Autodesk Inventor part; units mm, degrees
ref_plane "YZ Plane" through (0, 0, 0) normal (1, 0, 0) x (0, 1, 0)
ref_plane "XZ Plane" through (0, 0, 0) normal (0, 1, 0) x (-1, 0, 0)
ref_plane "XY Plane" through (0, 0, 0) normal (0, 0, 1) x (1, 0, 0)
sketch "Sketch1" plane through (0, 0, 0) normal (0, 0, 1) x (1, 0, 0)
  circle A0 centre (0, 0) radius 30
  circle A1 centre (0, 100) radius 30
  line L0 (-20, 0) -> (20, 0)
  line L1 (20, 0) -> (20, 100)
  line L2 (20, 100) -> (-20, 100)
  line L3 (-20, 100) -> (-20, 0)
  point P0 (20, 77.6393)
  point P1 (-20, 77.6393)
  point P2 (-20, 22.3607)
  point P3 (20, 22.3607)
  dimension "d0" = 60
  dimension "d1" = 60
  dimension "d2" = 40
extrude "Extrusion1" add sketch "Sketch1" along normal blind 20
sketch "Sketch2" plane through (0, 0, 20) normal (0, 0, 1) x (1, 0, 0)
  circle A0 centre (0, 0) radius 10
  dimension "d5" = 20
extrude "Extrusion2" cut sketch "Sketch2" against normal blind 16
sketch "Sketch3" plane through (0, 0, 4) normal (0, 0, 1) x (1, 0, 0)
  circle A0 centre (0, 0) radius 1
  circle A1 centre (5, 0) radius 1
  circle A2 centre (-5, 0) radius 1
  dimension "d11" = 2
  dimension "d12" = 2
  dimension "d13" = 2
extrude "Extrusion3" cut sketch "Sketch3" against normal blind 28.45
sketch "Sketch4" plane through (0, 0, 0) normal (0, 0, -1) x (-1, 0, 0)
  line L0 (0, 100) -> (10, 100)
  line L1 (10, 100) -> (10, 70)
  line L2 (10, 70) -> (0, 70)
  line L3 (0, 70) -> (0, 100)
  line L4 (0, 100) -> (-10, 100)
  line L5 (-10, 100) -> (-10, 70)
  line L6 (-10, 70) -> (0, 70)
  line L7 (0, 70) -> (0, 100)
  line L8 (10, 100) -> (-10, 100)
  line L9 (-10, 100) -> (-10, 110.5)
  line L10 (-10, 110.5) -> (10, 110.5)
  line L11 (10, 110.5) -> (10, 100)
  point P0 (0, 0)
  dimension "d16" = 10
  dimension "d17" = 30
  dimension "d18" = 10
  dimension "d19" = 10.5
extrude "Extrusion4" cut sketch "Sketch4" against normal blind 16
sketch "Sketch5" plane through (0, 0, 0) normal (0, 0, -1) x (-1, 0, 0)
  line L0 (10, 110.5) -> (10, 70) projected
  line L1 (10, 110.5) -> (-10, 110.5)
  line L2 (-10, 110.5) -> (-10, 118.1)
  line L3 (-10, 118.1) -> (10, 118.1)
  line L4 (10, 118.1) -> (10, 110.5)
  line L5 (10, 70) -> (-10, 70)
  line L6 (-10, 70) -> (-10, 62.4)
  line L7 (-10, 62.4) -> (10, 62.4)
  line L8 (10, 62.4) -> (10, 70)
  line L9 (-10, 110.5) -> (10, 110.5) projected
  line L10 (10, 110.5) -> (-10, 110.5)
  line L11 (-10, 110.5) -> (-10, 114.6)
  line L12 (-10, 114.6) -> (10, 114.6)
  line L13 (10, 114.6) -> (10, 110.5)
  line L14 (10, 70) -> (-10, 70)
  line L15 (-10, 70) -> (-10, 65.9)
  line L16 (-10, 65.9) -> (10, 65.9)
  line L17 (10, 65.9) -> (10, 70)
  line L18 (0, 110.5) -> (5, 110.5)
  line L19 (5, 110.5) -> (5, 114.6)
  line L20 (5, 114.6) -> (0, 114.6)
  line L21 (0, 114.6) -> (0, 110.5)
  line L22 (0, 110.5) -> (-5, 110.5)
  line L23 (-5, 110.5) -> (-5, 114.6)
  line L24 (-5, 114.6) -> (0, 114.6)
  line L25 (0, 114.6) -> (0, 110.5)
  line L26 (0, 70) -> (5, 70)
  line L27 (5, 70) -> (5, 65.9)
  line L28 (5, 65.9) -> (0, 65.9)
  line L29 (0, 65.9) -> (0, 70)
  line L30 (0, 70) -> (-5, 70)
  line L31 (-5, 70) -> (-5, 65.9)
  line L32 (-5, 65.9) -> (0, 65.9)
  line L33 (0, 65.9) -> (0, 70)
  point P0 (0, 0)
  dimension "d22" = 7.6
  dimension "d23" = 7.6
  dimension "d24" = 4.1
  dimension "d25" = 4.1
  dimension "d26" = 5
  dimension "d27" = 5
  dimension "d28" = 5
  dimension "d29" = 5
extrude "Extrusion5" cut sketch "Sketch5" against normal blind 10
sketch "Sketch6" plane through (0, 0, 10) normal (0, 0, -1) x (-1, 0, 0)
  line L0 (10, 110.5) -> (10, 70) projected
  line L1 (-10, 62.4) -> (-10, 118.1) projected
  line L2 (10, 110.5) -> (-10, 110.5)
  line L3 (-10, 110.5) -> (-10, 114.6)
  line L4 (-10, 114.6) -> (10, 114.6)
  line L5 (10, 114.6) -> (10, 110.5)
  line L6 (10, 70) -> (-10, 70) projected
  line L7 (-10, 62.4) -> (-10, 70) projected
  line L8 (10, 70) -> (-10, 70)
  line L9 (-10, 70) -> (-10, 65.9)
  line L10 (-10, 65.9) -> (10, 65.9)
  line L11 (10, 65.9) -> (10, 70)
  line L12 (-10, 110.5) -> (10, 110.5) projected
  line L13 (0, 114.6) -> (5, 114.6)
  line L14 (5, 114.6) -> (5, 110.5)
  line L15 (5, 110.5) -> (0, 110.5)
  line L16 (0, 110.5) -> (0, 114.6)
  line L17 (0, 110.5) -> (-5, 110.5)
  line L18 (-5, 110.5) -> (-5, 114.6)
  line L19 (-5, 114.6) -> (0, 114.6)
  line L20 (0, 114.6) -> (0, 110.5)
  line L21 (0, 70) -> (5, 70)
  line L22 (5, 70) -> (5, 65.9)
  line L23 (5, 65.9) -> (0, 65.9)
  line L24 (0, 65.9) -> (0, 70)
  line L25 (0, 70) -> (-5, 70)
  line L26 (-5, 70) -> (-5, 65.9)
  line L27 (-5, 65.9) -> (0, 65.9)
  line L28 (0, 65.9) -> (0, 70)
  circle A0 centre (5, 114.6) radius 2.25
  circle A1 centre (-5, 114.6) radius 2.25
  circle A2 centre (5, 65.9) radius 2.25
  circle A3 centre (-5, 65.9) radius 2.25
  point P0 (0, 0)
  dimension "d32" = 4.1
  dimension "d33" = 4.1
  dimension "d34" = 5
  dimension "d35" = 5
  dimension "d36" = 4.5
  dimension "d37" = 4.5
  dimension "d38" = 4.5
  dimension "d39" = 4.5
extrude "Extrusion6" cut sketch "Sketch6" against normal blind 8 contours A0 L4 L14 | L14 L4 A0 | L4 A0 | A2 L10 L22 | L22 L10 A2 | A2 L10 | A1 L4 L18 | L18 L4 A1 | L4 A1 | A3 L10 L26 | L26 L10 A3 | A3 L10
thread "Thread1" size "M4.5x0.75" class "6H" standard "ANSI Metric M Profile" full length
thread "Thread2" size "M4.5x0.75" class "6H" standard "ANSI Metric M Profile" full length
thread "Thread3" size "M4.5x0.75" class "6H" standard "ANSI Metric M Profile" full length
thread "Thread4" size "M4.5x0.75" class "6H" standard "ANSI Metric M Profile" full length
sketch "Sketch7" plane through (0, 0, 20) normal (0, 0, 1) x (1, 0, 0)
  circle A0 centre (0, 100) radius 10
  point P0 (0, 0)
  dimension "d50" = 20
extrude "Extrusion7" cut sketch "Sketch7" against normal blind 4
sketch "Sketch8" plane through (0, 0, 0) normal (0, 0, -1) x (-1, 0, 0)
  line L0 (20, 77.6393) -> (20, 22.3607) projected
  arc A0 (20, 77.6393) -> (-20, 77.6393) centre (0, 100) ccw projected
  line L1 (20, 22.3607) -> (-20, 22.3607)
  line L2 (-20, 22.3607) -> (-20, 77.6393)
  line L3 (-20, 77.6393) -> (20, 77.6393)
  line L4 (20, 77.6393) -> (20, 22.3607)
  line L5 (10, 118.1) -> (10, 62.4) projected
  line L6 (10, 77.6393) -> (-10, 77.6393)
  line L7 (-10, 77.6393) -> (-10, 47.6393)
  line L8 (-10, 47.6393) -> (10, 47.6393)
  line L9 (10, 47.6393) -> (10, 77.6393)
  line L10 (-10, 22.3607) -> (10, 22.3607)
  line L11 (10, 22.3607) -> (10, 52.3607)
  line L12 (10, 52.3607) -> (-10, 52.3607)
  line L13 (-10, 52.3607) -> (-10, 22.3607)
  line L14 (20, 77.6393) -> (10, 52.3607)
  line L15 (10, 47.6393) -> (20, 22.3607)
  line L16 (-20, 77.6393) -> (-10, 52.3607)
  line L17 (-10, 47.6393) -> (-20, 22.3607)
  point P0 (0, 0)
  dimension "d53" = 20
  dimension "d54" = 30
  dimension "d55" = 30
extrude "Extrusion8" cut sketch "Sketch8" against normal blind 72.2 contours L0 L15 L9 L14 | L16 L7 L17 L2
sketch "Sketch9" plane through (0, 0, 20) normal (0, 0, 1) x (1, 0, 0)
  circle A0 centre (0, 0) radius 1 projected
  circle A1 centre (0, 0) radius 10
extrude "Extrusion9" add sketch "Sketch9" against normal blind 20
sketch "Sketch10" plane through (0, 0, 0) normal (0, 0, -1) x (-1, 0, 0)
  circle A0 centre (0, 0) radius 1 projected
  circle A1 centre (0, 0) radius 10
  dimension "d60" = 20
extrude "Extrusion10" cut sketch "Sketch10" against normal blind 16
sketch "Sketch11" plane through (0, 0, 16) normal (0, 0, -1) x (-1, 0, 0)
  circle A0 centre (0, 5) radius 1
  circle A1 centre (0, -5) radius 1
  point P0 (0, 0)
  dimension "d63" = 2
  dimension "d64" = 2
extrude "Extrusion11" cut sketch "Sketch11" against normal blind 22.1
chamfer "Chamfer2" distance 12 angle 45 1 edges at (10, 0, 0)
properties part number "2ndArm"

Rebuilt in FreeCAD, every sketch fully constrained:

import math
import FreeCAD as App
import Part
import Sketcher
Q = App.Units.Quantity


def edges_at(feature, points):
    """Names of the edges that pass closest to the given points."""
    edges = feature.Shape.Edges
    near = lambda p: min(range(len(edges)), key=lambda i: edges[i].distToShape(Part.Vertex(*p))[0])
    return sorted({f"Edge{near(p) + 1}" for p in points})

doc = App.newDocument("Part")
params = doc.addObject("Spreadsheet::Sheet", "Params")
for row, (alias, value) in enumerate([
    ("sketch1_radius", "30 mm"),
    ("pad1_length", "20 mm"),
    ("sketch2_diameter", "20 mm"),
    ("pocket1_length", "16 mm"),
    ("sketch3_diameter", "2 mm"),
    ("pocket2_length", "28.45 mm"),
    ("sketch4_height", "40.5 mm"),
    ("pocket3_length", "16 mm"),
    ("sketch5_height", "7.6 mm"),
    ("sketch5_width", "20 mm"),
    ("pocket4_length", "10 mm"),
    ("sketch6_diameter", "4.5 mm"),
    ("pocket5_length", "8 mm"),
    ("sketch7_diameter", "20 mm"),
    ("pocket6_length", "4 mm"),
    ("pocket7_length", "72.2 mm"),
    ("sketch9_diameter", "20 mm"),
    ("sketch9_diameter2", "2 mm"),
    ("pad2_length", "20 mm"),
    ("sketch10_diameter", "20 mm"),
    ("sketch10_diameter2", "2 mm"),
    ("pocket8_length", "16 mm"),
    ("sketch11_diameter", "2 mm"),
    ("pocket9_length", "22.1 mm"),
    ("chamfer_size", "12 mm"),
], start=1):
    params.set(f"A{row}", alias)
    params.set(f"B{row}", "=" + value)
    params.setAlias(f"B{row}", alias)

body = doc.addObject("PartDesign::Body", "Body")

sketch1 = body.newObject("Sketcher::SketchObject", "Sketch")
sketch1.AttachmentSupport = (doc.getObject("XY_Plane"), [""])
sketch1.MapMode = "FlatFace"
sketch1.addGeometry([
    Part.ArcOfCircle(Part.Circle(App.Vector(0, 0, 0), App.Vector(0, 0, 1), 30), math.radians(132), math.radians(408)),
    Part.LineSegment(App.Vector(20, 22, 0), App.Vector(20, 78, 0)),
    Part.ArcOfCircle(Part.Circle(App.Vector(0, 100, 0), App.Vector(0, 0, 1), 30), math.radians(-48), math.radians(228)),
    Part.LineSegment(App.Vector(-20, 78, 0), App.Vector(-20, 22, 0)),
], False)
sketch1.addConstraint([
    Sketcher.Constraint("Coincident", 0, 2, 1, 1),
    Sketcher.Constraint("Coincident", 1, 2, 2, 1),
    Sketcher.Constraint("Coincident", 2, 2, 3, 1),
    Sketcher.Constraint("Coincident", 3, 2, 0, 1),
    Sketcher.Constraint("Vertical", 1),
    Sketcher.Constraint("Vertical", 3),
    Sketcher.Constraint("Coincident", 0, 3, -1, 1),
    Sketcher.Constraint("Equal", 0, 2),
    Sketcher.Constraint("Symmetric", 1, 2, 2, 2, -2),
    Sketcher.Constraint("Radius", 0, Q("30 mm")),
    Sketcher.Constraint("DistanceX", 2, 2, 1, 2, Q("40 mm")),
    Sketcher.Constraint("DistanceY", -1, 1, 2, 3, Q("100 mm")),
])
sketch1.setExpression("Constraints[9]", "Params.sketch1_radius")
pad1 = body.newObject("PartDesign::Pad", "Pad")
pad1.Profile = sketch1
pad1.setExpression("Length", "Params.pad1_length")

sketch2 = body.newObject("Sketcher::SketchObject", "Sketch001")
sketch2.AttachmentSupport = (doc.getObject("XY_Plane"), [""])
sketch2.MapMode = "FlatFace"
sketch2.AttachmentOffset = App.Placement(App.Vector(0, 0, 20), App.Rotation())
sketch2.addGeometry(Part.Circle(App.Vector(0, 0, 0), App.Vector(0, 0, 1), 10), False)
sketch2.addConstraint([
    Sketcher.Constraint("Coincident", 0, 3, -1, 1),
    Sketcher.Constraint("Diameter", 0, Q("20 mm")),
])
sketch2.setExpression("Constraints[1]", "Params.sketch2_diameter")
pocket1 = body.newObject("PartDesign::Pocket", "Pocket")
pocket1.Profile = sketch2
pocket1.setExpression("Length", "Params.pocket1_length")

sketch3 = body.newObject("Sketcher::SketchObject", "Sketch002")
sketch3.AttachmentSupport = (doc.getObject("XY_Plane"), [""])
sketch3.MapMode = "FlatFace"
sketch3.AttachmentOffset = App.Placement(App.Vector(0, 0, 4), App.Rotation())
sketch3.addGeometry([
    Part.Circle(App.Vector(0, 0, 0), App.Vector(0, 0, 1), 1),
    Part.Circle(App.Vector(5, 0, 0), App.Vector(0, 0, 1), 1),
    Part.Circle(App.Vector(-5, 0, 0), App.Vector(0, 0, 1), 1),
], False)
sketch3.addConstraint([
    Sketcher.Constraint("Coincident", 0, 3, -1, 1),
    Sketcher.Constraint("Equal", 0, 1),
    Sketcher.Constraint("Equal", 1, 2),
    Sketcher.Constraint("Symmetric", 1, 3, 2, 3, -1, 1),
    Sketcher.Constraint("PointOnObject", 1, 3, -1),
    Sketcher.Constraint("Diameter", 0, Q("2 mm")),
    Sketcher.Constraint("DistanceX", -1, 1, 1, 3, Q("5 mm")),
])
sketch3.setExpression("Constraints[5]", "Params.sketch3_diameter")
pocket2 = body.newObject("PartDesign::Pocket", "Pocket001")
pocket2.Profile = sketch3
pocket2.setExpression("Length", "Params.pocket2_length")

sketch4 = body.newObject("Sketcher::SketchObject", "Sketch003")
sketch4.AttachmentSupport = (doc.getObject("XY_Plane"), [""])
sketch4.MapMode = "FlatFace"
sketch4.addGeometry([
    Part.LineSegment(App.Vector(10, 110, 0), App.Vector(10, 70, 0)),
    Part.LineSegment(App.Vector(10, 70, 0), App.Vector(-10, 70, 0)),
    Part.LineSegment(App.Vector(-10, 70, 0), App.Vector(-10, 110, 0)),
    Part.LineSegment(App.Vector(-10, 110, 0), App.Vector(10, 110, 0)),
], False)
sketch4.addConstraint([
    Sketcher.Constraint("Coincident", 0, 2, 1, 1),
    Sketcher.Constraint("Coincident", 1, 2, 2, 1),
    Sketcher.Constraint("Coincident", 2, 2, 3, 1),
    Sketcher.Constraint("Coincident", 3, 2, 0, 1),
    Sketcher.Constraint("Vertical", 0),
    Sketcher.Constraint("Horizontal", 1),
    Sketcher.Constraint("Vertical", 2),
    Sketcher.Constraint("Horizontal", 3),
    Sketcher.Constraint("DistanceX", -1, 1, 0, 2, Q("10 mm")),
    Sketcher.Constraint("DistanceX", 1, 2, -1, 1, Q("10 mm")),
    Sketcher.Constraint("DistanceY", 0, 2, 0, 1, Q("40.5 mm")),
    Sketcher.Constraint("DistanceY", -1, 1, 0, 2, Q("70 mm")),
])
sketch4.setExpression("Constraints[10]", "Params.sketch4_height")
pocket3 = body.newObject("PartDesign::Pocket", "Pocket002")
pocket3.Profile = sketch4
pocket3.setExpression("Length", "Params.pocket3_length")
pocket3.Reversed = True

sketch5 = body.newObject("Sketcher::SketchObject", "Sketch004")
sketch5.AttachmentSupport = (doc.getObject("XY_Plane"), [""])
sketch5.MapMode = "FlatFace"
sketch5.addGeometry([
    Part.LineSegment(App.Vector(-10, 70, 0), App.Vector(10, 70, 0)),
    Part.LineSegment(App.Vector(10, 70, 0), App.Vector(10, 62, 0)),
    Part.LineSegment(App.Vector(10, 62, 0), App.Vector(-10, 62, 0)),
    Part.LineSegment(App.Vector(-10, 62, 0), App.Vector(-10, 70, 0)),
    Part.LineSegment(App.Vector(-10, 110, 0), App.Vector(-10, 118, 0)),
    Part.LineSegment(App.Vector(-10, 118, 0), App.Vector(10, 118, 0)),
    Part.LineSegment(App.Vector(10, 118, 0), App.Vector(10, 110, 0)),
    Part.LineSegment(App.Vector(10, 110, 0), App.Vector(-10, 110, 0)),
], False)
sketch5.addConstraint([
    Sketcher.Constraint("Coincident", 0, 2, 1, 1),
    Sketcher.Constraint("Coincident", 1, 2, 2, 1),
    Sketcher.Constraint("Coincident", 2, 2, 3, 1),
    Sketcher.Constraint("Coincident", 3, 2, 0, 1),
    Sketcher.Constraint("Coincident", 4, 2, 5, 1),
    Sketcher.Constraint("Coincident", 5, 2, 6, 1),
    Sketcher.Constraint("Coincident", 6, 2, 7, 1),
    Sketcher.Constraint("Coincident", 7, 2, 4, 1),
    Sketcher.Constraint("Horizontal", 0),
    Sketcher.Constraint("Vertical", 1),
    Sketcher.Constraint("Horizontal", 2),
    Sketcher.Constraint("Vertical", 3),
    Sketcher.Constraint("Vertical", 4),
    Sketcher.Constraint("Horizontal", 5),
    Sketcher.Constraint("Vertical", 6),
    Sketcher.Constraint("Horizontal", 7),
    Sketcher.Constraint("Vertical", 3, 2, 4, 2),
    Sketcher.Constraint("Vertical", 1, 2, 5, 2),
    Sketcher.Constraint("Equal", 3, 4),
    Sketcher.Constraint("DistanceY", 1, 2, 1, 1, Q("7.6 mm")),
    Sketcher.Constraint("DistanceX", 0, 1, 0, 2, Q("20 mm")),
    Sketcher.Constraint("DistanceX", -1, 1, 0, 2, Q("10 mm")),
    Sketcher.Constraint("DistanceY", -1, 1, 0, 2, Q("70 mm")),
    Sketcher.Constraint("DistanceY", -1, 1, 4, 2, Q("118.1 mm")),
])
sketch5.setExpression("Constraints[19]", "Params.sketch5_height")
sketch5.setExpression("Constraints[20]", "Params.sketch5_width")
pocket4 = body.newObject("PartDesign::Pocket", "Pocket003")
pocket4.Profile = sketch5
pocket4.setExpression("Length", "Params.pocket4_length")
pocket4.Reversed = True

sketch6 = body.newObject("Sketcher::SketchObject", "Sketch005")
sketch6.AttachmentSupport = (doc.getObject("XY_Plane"), [""])
sketch6.MapMode = "FlatFace"
sketch6.AttachmentOffset = App.Placement(App.Vector(0, 0, 10), App.Rotation())
sketch6.addGeometry([
    Part.Circle(App.Vector(-5, 114.6, 0), App.Vector(0, 0, 1), 2.2),
    Part.Circle(App.Vector(-5, 65.9, 0), App.Vector(0, 0, 1), 2.2),
    Part.Circle(App.Vector(5, 114.6, 0), App.Vector(0, 0, 1), 2.2),
    Part.Circle(App.Vector(5, 65.9, 0), App.Vector(0, 0, 1), 2.2),
], False)
sketch6.addConstraint([
    Sketcher.Constraint("Equal", 0, 1),
    Sketcher.Constraint("Equal", 1, 2),
    Sketcher.Constraint("Equal", 2, 3),
    Sketcher.Constraint("Symmetric", 0, 3, 2, 3, -2),
    Sketcher.Constraint("Symmetric", 1, 3, 3, 3, -2),
    Sketcher.Constraint("Vertical", 0, 3, 1, 3),
    Sketcher.Constraint("Diameter", 0, Q("4.5 mm")),
    Sketcher.Constraint("DistanceX", 0, 3, -1, 1, Q("5 mm")),
    Sketcher.Constraint("DistanceY", -1, 1, 0, 3, Q("114.6 mm")),
    Sketcher.Constraint("DistanceY", -1, 1, 1, 3, Q("65.9 mm")),
])
sketch6.setExpression("Constraints[6]", "Params.sketch6_diameter")
pocket5 = body.newObject("PartDesign::Pocket", "Pocket004")
pocket5.Profile = sketch6
pocket5.setExpression("Length", "Params.pocket5_length")
pocket5.Reversed = True

sketch7 = body.newObject("Sketcher::SketchObject", "Sketch006")
sketch7.AttachmentSupport = (doc.getObject("XY_Plane"), [""])
sketch7.MapMode = "FlatFace"
sketch7.AttachmentOffset = App.Placement(App.Vector(0, 0, 20), App.Rotation())
sketch7.addGeometry(Part.Circle(App.Vector(0, 100, 0), App.Vector(0, 0, 1), 10), False)
sketch7.addConstraint([
    Sketcher.Constraint("PointOnObject", 0, 3, -2),
    Sketcher.Constraint("Diameter", 0, Q("20 mm")),
    Sketcher.Constraint("DistanceY", -1, 1, 0, 3, Q("100 mm")),
])
sketch7.setExpression("Constraints[1]", "Params.sketch7_diameter")
pocket6 = body.newObject("PartDesign::Pocket", "Pocket005")
pocket6.Profile = sketch7
pocket6.setExpression("Length", "Params.pocket6_length")

sketch8 = body.newObject("Sketcher::SketchObject", "Sketch007")
sketch8.AttachmentSupport = (doc.getObject("XY_Plane"), [""])
sketch8.MapMode = "FlatFace"
sketch8.addGeometry([
    Part.LineSegment(App.Vector(-20, 22.4, 0), App.Vector(-20, 77.6, 0)),
    Part.LineSegment(App.Vector(-20, 77.6, 0), App.Vector(-10, 52.4, 0)),
    Part.LineSegment(App.Vector(-10, 52.4, 0), App.Vector(-10, 47.6, 0)),
    Part.LineSegment(App.Vector(-10, 47.6, 0), App.Vector(-20, 22.4, 0)),
    Part.LineSegment(App.Vector(10, 52.4, 0), App.Vector(20, 77.6, 0)),
    Part.LineSegment(App.Vector(20, 77.6, 0), App.Vector(20, 22.4, 0)),
    Part.LineSegment(App.Vector(20, 22.4, 0), App.Vector(10, 47.6, 0)),
    Part.LineSegment(App.Vector(10, 47.6, 0), App.Vector(10, 52.4, 0)),
], False)
sketch8.addConstraint([
    Sketcher.Constraint("Coincident", 0, 2, 1, 1),
    Sketcher.Constraint("Coincident", 1, 2, 2, 1),
    Sketcher.Constraint("Coincident", 2, 2, 3, 1),
    Sketcher.Constraint("Coincident", 3, 2, 0, 1),
    Sketcher.Constraint("Coincident", 4, 2, 5, 1),
    Sketcher.Constraint("Coincident", 5, 2, 6, 1),
    Sketcher.Constraint("Coincident", 6, 2, 7, 1),
    Sketcher.Constraint("Coincident", 7, 2, 4, 1),
    Sketcher.Constraint("Vertical", 0),
    Sketcher.Constraint("Vertical", 2),
    Sketcher.Constraint("Vertical", 5),
    Sketcher.Constraint("Vertical", 7),
    Sketcher.Constraint("Symmetric", 0, 2, 4, 2, -2),
    Sketcher.Constraint("Symmetric", 2, 2, 6, 2, -2),
    Sketcher.Constraint("Parallel", 3, 4),
    Sketcher.Constraint("Parallel", 1, 6),
    Sketcher.Constraint("Horizontal", 3, 2, 5, 2),
    Sketcher.Constraint("DistanceX", 0, 2, -1, 1, Q("20 mm")),
    Sketcher.Constraint("DistanceY", 2, 2, 0, 2, Q("30 mm")),
    Sketcher.Constraint("DistanceX", 1, 2, 4, 2, Q("30 mm")),
    Sketcher.Constraint("DistanceY", 0, 1, 0, 2, Q("55.2786 mm")),
    Sketcher.Constraint("DistanceY", -1, 1, 0, 2, Q("77.6393 mm")),
])
pocket7 = body.newObject("PartDesign::Pocket", "Pocket006")
pocket7.Profile = sketch8
pocket7.setExpression("Length", "Params.pocket7_length")
pocket7.Reversed = True

sketch9 = body.newObject("Sketcher::SketchObject", "Sketch008")
sketch9.AttachmentSupport = (doc.getObject("XY_Plane"), [""])
sketch9.MapMode = "FlatFace"
sketch9.AttachmentOffset = App.Placement(App.Vector(0, 0, 20), App.Rotation())
sketch9.addGeometry([
    Part.Circle(App.Vector(0, 0, 0), App.Vector(0, 0, 1), 10),
    Part.Circle(App.Vector(0, 0, 0), App.Vector(0, 0, 1), 1),
], False)
sketch9.addConstraint([
    Sketcher.Constraint("Coincident", 0, 3, -1, 1),
    Sketcher.Constraint("Coincident", 1, 3, -1, 1),
    Sketcher.Constraint("Diameter", 0, Q("20 mm")),
    Sketcher.Constraint("Diameter", 1, Q("2 mm")),
])
sketch9.setExpression("Constraints[2]", "Params.sketch9_diameter")
sketch9.setExpression("Constraints[3]", "Params.sketch9_diameter2")
pad2 = body.newObject("PartDesign::Pad", "Pad001")
pad2.Profile = sketch9
pad2.setExpression("Length", "Params.pad2_length")
pad2.Reversed = True

sketch10 = body.newObject("Sketcher::SketchObject", "Sketch009")
sketch10.AttachmentSupport = (doc.getObject("XY_Plane"), [""])
sketch10.MapMode = "FlatFace"
sketch10.addGeometry([
    Part.Circle(App.Vector(0, 0, 0), App.Vector(0, 0, 1), 10),
    Part.Circle(App.Vector(0, 0, 0), App.Vector(0, 0, 1), 1),
], False)
sketch10.addConstraint([
    Sketcher.Constraint("Coincident", 0, 3, -1, 1),
    Sketcher.Constraint("Coincident", 1, 3, -1, 1),
    Sketcher.Constraint("Diameter", 0, Q("20 mm")),
    Sketcher.Constraint("Diameter", 1, Q("2 mm")),
])
sketch10.setExpression("Constraints[2]", "Params.sketch10_diameter")
sketch10.setExpression("Constraints[3]", "Params.sketch10_diameter2")
pocket8 = body.newObject("PartDesign::Pocket", "Pocket007")
pocket8.Profile = sketch10
pocket8.setExpression("Length", "Params.pocket8_length")
pocket8.Reversed = True

sketch11 = body.newObject("Sketcher::SketchObject", "Sketch010")
sketch11.AttachmentSupport = (doc.getObject("XY_Plane"), [""])
sketch11.MapMode = "FlatFace"
sketch11.AttachmentOffset = App.Placement(App.Vector(0, 0, 16), App.Rotation())
sketch11.addGeometry([
    Part.Circle(App.Vector(0, 5, 0), App.Vector(0, 0, 1), 1),
    Part.Circle(App.Vector(0, -5, 0), App.Vector(0, 0, 1), 1),
], False)
sketch11.addConstraint([
    Sketcher.Constraint("Equal", 0, 1),
    Sketcher.Constraint("Symmetric", 0, 3, 1, 3, -1, 1),
    Sketcher.Constraint("PointOnObject", 0, 3, -2),
    Sketcher.Constraint("Diameter", 0, Q("2 mm")),
    Sketcher.Constraint("DistanceY", -1, 1, 0, 3, Q("5 mm")),
])
sketch11.setExpression("Constraints[3]", "Params.sketch11_diameter")
pocket9 = body.newObject("PartDesign::Pocket", "Pocket008")
pocket9.Profile = sketch11
pocket9.setExpression("Length", "Params.pocket9_length")
pocket9.Reversed = True
doc.recompute()

chamfer = body.newObject("PartDesign::Chamfer", "Chamfer")
chamfer.Base = (pocket9, edges_at(pocket9, [(10, 0, 0)]))
chamfer.setExpression("Size", "Params.chamfer_size")

doc.recompute()
